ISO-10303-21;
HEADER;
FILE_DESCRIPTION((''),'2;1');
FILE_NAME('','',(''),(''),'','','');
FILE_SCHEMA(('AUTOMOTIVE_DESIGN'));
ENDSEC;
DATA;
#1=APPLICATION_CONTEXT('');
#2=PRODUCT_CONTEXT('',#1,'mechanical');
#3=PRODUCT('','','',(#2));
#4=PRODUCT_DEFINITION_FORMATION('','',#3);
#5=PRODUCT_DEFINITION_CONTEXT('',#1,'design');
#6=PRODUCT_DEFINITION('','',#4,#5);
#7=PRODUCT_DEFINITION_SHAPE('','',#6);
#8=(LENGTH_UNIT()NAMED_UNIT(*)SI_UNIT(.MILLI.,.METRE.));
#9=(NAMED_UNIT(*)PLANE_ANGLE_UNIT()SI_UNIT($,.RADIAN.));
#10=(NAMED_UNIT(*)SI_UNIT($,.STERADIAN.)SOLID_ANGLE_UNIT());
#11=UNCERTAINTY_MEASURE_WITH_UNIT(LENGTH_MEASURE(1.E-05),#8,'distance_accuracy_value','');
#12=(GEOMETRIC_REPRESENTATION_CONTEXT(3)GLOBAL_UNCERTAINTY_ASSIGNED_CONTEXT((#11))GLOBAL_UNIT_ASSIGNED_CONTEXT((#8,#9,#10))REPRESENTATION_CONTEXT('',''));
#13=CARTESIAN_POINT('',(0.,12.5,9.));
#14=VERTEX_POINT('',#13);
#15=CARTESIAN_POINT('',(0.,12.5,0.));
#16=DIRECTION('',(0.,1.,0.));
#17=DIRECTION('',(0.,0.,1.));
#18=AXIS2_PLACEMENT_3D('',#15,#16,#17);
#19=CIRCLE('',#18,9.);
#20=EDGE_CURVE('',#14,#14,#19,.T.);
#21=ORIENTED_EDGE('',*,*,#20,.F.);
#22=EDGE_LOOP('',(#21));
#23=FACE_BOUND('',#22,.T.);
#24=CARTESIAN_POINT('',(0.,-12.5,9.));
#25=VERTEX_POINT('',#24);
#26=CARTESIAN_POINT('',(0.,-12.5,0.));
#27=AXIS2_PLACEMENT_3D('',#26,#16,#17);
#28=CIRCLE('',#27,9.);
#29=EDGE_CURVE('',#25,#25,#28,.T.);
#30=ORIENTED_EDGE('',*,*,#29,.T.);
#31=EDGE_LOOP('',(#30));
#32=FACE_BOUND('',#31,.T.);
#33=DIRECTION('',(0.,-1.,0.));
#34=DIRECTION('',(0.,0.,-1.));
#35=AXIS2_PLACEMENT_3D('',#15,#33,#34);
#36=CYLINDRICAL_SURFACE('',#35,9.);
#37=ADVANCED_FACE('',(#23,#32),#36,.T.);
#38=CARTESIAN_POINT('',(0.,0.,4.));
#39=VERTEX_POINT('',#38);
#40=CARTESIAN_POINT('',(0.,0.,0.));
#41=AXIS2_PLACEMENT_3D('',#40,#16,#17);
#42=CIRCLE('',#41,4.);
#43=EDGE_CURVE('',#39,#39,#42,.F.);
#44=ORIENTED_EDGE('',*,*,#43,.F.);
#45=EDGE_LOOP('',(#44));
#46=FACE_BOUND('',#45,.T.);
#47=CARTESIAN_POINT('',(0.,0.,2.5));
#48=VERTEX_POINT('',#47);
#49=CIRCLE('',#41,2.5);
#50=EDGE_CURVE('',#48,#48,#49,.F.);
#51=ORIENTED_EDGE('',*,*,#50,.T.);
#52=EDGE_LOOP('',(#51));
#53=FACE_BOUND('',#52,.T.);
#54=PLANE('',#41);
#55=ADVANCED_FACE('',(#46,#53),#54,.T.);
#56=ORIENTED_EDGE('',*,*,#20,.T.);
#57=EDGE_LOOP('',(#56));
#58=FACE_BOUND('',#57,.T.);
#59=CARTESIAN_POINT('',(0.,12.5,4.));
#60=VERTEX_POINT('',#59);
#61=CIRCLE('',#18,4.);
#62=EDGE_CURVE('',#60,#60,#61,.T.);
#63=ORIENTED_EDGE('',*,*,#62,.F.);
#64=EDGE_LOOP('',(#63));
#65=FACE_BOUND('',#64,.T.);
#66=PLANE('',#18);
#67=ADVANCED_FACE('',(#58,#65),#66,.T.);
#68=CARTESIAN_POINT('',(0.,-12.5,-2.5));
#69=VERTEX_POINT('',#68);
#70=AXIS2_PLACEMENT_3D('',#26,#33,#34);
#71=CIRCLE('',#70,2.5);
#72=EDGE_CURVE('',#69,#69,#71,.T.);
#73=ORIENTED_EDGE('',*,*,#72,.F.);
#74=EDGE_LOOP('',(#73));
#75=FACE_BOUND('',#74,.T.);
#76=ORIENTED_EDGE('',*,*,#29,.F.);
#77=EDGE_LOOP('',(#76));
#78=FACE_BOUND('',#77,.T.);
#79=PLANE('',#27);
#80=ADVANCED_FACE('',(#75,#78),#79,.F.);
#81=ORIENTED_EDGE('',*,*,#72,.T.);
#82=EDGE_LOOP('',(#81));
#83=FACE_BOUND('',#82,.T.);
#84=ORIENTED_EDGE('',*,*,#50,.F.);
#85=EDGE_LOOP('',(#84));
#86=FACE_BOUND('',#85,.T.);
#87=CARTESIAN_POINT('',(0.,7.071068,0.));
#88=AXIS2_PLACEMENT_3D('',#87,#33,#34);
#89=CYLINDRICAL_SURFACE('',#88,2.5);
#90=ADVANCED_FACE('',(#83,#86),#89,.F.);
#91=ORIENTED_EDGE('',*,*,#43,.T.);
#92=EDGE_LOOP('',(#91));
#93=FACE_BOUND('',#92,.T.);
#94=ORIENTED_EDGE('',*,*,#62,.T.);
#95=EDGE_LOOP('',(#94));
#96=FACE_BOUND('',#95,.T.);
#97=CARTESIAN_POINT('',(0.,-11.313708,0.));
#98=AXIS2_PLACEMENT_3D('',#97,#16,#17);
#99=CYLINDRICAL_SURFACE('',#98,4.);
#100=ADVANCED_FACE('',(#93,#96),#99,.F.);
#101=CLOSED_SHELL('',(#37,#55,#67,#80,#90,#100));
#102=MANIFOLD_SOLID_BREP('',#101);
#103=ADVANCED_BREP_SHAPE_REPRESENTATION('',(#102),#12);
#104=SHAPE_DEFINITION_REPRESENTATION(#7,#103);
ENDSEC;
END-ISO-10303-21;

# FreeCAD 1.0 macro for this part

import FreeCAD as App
import Part
import Sketcher
from FreeCAD import Vector
Q = App.Units.Quantity

doc = App.newDocument("Part")
body = doc.addObject("PartDesign::Body", "Body")

# Sketch on XZ plane
sketch1 = doc.addObject("Sketcher::SketchObject", "Sketch")
body.addObject(sketch1)
sketch1.AttachmentSupport = (doc.XZ_Plane, [""])
sketch1.MapMode = "FlatFace"
sketch1.addGeometry(Part.Circle(Vector(0, 0, 0), Vector(0, 0, 1), 9), False)
sketch1.addConstraint([
    Sketcher.Constraint("Coincident", 0, 3, -1, 1),
    Sketcher.Constraint("Diameter", 0, Q("18 mm")),
])
pad1 = doc.addObject("PartDesign::Pad", "Pad")
body.addObject(pad1)
pad1.Profile = sketch1
pad1.Length = 25
pad1.Midplane = True

# Sketch on XZ plane
sketch2 = doc.addObject("Sketcher::SketchObject", "Sketch001")
body.addObject(sketch2)
sketch2.AttachmentSupport = (doc.XZ_Plane, [""])
sketch2.MapMode = "FlatFace"
sketch2.addGeometry(Part.Circle(Vector(0, 0, 0), Vector(0, 0, 1), 4), False)
sketch2.addConstraint([
    Sketcher.Constraint("Coincident", 0, 3, -1, 1),
    Sketcher.Constraint("Diameter", 0, Q("8 mm")),
])
pocket1 = doc.addObject("PartDesign::Pocket", "Pocket")
body.addObject(pocket1)
pocket1.Profile = sketch2
pocket1.Length = 12.5

# Sketch on XZ plane
sketch3 = doc.addObject("Sketcher::SketchObject", "Sketch002")
body.addObject(sketch3)
sketch3.AttachmentSupport = (doc.XZ_Plane, [""])
sketch3.MapMode = "FlatFace"
sketch3.AttachmentOffset = App.Placement(Vector(0, 0, 12.5), App.Rotation())
sketch3.addGeometry(Part.Circle(Vector(0, 0, 0), Vector(0, 0, 1), 2.5), False)
sketch3.addConstraint([
    Sketcher.Constraint("Coincident", 0, 3, -1, 1),
    Sketcher.Constraint("Diameter", 0, Q("5 mm")),
])
pocket2 = doc.addObject("PartDesign::Pocket", "Pocket001")
body.addObject(pocket2)
pocket2.Profile = sketch3
pocket2.Type = "UpToFirst"

doc.recompute()
